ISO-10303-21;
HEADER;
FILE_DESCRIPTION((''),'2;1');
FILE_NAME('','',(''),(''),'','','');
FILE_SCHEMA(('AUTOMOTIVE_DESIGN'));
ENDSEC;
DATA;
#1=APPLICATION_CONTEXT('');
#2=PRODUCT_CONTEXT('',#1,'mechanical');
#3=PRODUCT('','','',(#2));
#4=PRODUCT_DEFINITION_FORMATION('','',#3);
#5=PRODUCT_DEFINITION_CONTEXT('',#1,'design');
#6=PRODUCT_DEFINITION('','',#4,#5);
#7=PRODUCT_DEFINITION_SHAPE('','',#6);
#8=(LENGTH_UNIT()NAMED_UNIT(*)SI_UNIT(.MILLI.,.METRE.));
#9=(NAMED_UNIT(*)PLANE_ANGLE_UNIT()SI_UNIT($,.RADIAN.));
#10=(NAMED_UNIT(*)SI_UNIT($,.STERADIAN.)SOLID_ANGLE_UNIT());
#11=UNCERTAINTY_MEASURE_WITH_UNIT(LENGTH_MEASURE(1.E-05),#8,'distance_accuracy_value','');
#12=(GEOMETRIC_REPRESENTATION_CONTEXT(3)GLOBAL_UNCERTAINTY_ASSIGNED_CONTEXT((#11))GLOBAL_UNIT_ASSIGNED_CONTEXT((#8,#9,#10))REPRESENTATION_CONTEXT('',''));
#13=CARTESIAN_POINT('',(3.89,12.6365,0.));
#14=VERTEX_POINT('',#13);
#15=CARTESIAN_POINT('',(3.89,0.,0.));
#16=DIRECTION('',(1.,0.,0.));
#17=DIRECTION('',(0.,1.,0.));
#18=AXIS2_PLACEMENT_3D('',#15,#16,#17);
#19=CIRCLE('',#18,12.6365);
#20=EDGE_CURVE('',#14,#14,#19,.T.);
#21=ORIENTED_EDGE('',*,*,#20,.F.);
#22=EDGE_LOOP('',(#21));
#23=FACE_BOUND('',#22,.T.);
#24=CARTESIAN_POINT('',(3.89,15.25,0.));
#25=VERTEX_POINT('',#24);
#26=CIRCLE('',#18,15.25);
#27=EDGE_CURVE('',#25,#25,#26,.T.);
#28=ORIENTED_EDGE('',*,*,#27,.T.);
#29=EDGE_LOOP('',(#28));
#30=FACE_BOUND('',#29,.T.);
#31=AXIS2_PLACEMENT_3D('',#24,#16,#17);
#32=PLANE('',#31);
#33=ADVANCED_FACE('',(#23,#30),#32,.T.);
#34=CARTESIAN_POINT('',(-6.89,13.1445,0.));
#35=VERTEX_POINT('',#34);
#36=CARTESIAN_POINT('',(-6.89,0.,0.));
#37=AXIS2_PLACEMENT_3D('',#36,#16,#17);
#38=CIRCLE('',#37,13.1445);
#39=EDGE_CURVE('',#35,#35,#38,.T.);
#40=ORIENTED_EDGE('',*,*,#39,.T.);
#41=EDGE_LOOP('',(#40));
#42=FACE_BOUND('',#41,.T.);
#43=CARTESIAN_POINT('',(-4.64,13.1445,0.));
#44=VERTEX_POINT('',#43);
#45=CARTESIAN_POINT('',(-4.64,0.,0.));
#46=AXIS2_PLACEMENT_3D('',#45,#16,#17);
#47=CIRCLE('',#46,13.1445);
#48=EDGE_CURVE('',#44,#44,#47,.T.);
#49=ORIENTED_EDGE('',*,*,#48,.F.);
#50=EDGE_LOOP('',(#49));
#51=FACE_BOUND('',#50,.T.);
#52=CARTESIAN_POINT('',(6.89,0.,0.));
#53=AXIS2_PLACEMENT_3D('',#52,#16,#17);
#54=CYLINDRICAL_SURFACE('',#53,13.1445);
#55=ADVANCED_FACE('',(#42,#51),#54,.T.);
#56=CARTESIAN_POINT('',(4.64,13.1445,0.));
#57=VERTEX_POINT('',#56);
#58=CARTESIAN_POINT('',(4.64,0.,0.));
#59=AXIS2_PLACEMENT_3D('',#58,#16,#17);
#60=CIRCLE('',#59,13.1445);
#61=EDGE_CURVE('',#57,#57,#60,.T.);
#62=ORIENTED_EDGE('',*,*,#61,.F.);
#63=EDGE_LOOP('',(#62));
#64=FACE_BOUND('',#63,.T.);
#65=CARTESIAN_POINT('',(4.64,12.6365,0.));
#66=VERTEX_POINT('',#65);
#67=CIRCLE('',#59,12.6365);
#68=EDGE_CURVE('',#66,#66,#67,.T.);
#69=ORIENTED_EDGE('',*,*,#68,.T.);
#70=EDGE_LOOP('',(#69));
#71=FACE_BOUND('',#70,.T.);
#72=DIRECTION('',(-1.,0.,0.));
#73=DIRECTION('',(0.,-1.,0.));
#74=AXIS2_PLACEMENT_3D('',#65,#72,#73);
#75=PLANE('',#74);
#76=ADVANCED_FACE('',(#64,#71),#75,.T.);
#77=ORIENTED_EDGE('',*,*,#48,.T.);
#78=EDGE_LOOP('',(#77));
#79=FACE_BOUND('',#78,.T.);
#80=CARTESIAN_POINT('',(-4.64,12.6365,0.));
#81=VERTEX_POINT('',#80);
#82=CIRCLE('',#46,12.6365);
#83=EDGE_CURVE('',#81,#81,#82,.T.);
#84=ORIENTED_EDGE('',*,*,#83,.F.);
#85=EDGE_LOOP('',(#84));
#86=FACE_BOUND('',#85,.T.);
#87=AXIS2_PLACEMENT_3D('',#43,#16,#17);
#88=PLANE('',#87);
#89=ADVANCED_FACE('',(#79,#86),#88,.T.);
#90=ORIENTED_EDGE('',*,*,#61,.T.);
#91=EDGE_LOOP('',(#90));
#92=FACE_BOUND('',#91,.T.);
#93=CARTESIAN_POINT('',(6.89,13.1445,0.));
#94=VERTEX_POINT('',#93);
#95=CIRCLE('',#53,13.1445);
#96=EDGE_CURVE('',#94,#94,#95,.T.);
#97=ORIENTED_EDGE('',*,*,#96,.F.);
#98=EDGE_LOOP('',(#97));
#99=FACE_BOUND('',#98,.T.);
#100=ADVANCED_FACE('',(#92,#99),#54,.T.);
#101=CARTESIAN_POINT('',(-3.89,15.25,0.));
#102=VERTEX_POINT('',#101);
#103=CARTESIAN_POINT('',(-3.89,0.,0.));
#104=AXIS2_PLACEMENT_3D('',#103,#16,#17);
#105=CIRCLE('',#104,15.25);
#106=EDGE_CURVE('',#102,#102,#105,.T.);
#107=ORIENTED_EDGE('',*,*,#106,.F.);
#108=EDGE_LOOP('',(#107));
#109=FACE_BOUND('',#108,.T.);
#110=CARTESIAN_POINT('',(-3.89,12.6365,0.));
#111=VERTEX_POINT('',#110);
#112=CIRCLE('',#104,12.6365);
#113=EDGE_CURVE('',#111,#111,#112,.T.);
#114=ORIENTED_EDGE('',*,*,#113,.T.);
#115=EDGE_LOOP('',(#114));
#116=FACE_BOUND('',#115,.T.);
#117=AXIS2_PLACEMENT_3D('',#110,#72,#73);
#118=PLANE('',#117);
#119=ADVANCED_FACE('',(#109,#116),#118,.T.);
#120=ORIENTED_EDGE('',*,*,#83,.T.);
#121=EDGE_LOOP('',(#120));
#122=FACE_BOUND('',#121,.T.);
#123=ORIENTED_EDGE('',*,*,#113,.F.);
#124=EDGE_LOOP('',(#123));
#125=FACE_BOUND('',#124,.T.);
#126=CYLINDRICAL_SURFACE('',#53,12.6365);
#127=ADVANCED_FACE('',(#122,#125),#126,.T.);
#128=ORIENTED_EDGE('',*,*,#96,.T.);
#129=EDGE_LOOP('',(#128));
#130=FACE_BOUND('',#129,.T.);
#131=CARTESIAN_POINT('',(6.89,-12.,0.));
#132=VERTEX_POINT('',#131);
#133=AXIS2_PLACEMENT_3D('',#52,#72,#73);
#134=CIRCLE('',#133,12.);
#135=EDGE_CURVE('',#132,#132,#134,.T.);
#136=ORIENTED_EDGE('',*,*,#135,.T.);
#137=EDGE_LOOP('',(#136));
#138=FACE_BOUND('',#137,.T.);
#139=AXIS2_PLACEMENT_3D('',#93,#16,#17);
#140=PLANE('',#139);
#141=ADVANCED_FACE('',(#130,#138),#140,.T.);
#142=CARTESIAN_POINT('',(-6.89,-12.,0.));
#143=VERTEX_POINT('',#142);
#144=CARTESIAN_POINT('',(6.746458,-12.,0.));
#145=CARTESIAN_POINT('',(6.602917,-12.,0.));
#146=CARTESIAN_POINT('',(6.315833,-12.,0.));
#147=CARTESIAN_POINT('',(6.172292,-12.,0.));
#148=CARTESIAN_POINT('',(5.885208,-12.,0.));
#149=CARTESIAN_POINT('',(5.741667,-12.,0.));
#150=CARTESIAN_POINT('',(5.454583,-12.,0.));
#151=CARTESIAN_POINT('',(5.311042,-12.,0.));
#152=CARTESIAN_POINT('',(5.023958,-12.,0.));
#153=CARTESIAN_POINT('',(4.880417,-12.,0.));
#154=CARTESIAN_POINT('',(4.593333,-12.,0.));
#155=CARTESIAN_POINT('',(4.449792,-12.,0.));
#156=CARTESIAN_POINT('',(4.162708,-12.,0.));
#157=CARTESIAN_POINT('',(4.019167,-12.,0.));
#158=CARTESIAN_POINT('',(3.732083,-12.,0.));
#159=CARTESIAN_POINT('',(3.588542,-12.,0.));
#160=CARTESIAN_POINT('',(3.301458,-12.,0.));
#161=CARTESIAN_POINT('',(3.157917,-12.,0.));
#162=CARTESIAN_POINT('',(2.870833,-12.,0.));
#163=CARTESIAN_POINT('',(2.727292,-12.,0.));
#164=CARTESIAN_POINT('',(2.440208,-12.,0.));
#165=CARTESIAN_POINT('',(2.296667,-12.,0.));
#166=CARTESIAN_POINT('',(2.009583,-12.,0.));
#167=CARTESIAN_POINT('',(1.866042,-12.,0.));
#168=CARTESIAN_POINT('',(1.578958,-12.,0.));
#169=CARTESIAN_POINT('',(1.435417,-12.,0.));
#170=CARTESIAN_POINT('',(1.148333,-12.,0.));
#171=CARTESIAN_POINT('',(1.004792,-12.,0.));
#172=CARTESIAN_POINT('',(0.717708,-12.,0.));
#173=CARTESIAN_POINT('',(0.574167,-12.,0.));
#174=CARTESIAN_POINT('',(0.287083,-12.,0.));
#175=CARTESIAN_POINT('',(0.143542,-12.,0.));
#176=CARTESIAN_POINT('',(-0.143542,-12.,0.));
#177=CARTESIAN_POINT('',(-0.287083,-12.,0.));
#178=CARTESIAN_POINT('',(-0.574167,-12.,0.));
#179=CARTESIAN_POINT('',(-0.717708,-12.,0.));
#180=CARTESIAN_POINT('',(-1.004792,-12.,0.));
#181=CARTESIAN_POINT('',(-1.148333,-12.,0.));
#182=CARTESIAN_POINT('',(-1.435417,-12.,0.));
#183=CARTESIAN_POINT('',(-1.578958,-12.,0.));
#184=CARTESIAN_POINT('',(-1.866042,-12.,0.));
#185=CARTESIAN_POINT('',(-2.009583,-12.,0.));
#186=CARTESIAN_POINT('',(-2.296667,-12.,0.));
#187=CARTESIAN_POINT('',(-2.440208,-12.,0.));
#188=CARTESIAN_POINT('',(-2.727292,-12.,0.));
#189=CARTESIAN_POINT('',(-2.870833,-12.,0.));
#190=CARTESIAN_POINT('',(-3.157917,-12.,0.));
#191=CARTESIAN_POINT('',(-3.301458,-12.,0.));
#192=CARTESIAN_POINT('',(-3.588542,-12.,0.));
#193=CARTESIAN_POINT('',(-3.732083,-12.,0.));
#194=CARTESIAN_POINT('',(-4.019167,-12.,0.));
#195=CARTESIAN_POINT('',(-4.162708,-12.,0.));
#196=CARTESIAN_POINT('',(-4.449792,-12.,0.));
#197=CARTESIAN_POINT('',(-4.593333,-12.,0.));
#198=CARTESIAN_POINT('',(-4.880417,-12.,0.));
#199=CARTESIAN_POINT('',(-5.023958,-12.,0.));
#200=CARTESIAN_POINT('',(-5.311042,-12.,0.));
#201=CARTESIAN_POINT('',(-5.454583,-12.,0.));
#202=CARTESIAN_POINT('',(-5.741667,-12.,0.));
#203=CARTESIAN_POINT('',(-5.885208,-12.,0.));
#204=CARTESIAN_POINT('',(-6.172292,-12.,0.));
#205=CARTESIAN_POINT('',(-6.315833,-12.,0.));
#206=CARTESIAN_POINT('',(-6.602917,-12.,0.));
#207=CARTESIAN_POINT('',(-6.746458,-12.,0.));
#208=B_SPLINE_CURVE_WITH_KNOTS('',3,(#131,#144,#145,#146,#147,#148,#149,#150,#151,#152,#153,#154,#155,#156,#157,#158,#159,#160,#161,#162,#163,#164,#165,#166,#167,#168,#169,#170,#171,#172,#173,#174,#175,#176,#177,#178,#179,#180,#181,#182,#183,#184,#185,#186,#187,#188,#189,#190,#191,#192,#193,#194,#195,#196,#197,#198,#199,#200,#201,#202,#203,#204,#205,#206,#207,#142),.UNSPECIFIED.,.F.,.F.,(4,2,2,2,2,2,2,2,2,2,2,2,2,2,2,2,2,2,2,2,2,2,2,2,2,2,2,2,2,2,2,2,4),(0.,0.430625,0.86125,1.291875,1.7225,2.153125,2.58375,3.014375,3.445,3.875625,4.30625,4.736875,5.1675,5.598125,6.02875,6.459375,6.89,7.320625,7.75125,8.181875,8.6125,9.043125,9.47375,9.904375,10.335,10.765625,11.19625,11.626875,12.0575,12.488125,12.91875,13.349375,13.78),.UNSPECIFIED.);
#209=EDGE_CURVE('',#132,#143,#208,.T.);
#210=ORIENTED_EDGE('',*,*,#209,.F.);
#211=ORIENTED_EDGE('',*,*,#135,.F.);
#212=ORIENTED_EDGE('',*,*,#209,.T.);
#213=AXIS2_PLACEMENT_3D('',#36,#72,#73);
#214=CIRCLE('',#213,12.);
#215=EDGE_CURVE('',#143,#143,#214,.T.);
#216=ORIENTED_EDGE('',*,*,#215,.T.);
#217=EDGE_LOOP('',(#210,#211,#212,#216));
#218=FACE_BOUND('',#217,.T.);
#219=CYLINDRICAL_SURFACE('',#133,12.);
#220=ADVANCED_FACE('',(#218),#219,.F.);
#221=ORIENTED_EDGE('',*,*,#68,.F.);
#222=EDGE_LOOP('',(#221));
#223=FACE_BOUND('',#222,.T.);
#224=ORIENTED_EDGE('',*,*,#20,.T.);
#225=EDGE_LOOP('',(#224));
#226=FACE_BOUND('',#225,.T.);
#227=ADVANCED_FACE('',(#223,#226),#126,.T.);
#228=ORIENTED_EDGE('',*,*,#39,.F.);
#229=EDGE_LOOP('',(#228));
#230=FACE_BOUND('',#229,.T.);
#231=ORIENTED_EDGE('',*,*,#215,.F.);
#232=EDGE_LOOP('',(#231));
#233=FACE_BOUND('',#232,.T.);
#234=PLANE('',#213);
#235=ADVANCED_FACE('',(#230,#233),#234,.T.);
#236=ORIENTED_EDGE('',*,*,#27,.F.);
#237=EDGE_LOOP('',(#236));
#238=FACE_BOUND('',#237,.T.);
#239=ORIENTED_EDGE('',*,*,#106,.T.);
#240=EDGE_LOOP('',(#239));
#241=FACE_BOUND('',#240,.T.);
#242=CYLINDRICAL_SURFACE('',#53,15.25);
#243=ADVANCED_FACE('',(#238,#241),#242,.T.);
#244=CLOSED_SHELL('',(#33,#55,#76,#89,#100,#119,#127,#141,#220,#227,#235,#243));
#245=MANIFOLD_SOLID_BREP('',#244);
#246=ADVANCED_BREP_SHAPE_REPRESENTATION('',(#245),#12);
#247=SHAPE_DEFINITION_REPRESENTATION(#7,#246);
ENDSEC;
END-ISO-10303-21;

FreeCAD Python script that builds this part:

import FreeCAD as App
import Part
import Sketcher

doc = App.newDocument("Part")
body = doc.addObject("PartDesign::Body", "Body")

sketch1 = doc.addObject("Sketcher::SketchObject", "Sketch")
body.addObject(sketch1)
sketch1.AttachmentSupport = (doc.XY_Plane, [""])
sketch1.MapMode = "FlatFace"
sketch1.addGeometry(Part.LineSegment(App.Vector(-6.9, 0, 0), App.Vector(6.9, 0, 0)), False)
sketch1.addGeometry(Part.LineSegment(App.Vector(6.9, 0, 0), App.Vector(6.9, 13.1, 0)), False)
sketch1.addGeometry(Part.LineSegment(App.Vector(6.9, 13.1, 0), App.Vector(4.6, 13.1, 0)), False)
sketch1.addGeometry(Part.LineSegment(App.Vector(4.6, 13.1, 0), App.Vector(4.6, 12.6, 0)), False)
sketch1.addGeometry(Part.LineSegment(App.Vector(4.6, 12.6, 0), App.Vector(3.9, 12.6, 0)), False)
sketch1.addGeometry(Part.LineSegment(App.Vector(3.9, 12.6, 0), App.Vector(3.9, 15.2, 0)), False)
sketch1.addGeometry(Part.LineSegment(App.Vector(3.9, 15.2, 0), App.Vector(-3.9, 15.2, 0)), False)
sketch1.addGeometry(Part.LineSegment(App.Vector(-3.9, 15.2, 0), App.Vector(-3.9, 12.6, 0)), False)
sketch1.addGeometry(Part.LineSegment(App.Vector(-3.9, 12.6, 0), App.Vector(-4.6, 12.6, 0)), False)
sketch1.addGeometry(Part.LineSegment(App.Vector(-4.6, 12.6, 0), App.Vector(-4.6, 13.1, 0)), False)
sketch1.addGeometry(Part.LineSegment(App.Vector(-4.6, 13.1, 0), App.Vector(-6.9, 13.1, 0)), False)
sketch1.addGeometry(Part.LineSegment(App.Vector(-6.9, 13.1, 0), App.Vector(-6.9, 0, 0)), False)
sketch1.addConstraint(Sketcher.Constraint("Coincident", 0, 2, 1, 1))
sketch1.addConstraint(Sketcher.Constraint("Coincident", 1, 2, 2, 1))
sketch1.addConstraint(Sketcher.Constraint("Coincident", 2, 2, 3, 1))
sketch1.addConstraint(Sketcher.Constraint("Coincident", 3, 2, 4, 1))
sketch1.addConstraint(Sketcher.Constraint("Coincident", 4, 2, 5, 1))
sketch1.addConstraint(Sketcher.Constraint("Coincident", 5, 2, 6, 1))
sketch1.addConstraint(Sketcher.Constraint("Coincident", 6, 2, 7, 1))
sketch1.addConstraint(Sketcher.Constraint("Coincident", 7, 2, 8, 1))
sketch1.addConstraint(Sketcher.Constraint("Coincident", 8, 2, 9, 1))
sketch1.addConstraint(Sketcher.Constraint("Coincident", 9, 2, 10, 1))
sketch1.addConstraint(Sketcher.Constraint("Coincident", 10, 2, 11, 1))
sketch1.addConstraint(Sketcher.Constraint("Coincident", 11, 2, 0, 1))
sketch1.addConstraint(Sketcher.Constraint("Horizontal", 0))
sketch1.addConstraint(Sketcher.Constraint("Vertical", 1))
sketch1.addConstraint(Sketcher.Constraint("Horizontal", 2))
sketch1.addConstraint(Sketcher.Constraint("Vertical", 3))
sketch1.addConstraint(Sketcher.Constraint("Horizontal", 4))
sketch1.addConstraint(Sketcher.Constraint("Vertical", 5))
sketch1.addConstraint(Sketcher.Constraint("Horizontal", 6))
sketch1.addConstraint(Sketcher.Constraint("Vertical", 7))
sketch1.addConstraint(Sketcher.Constraint("Horizontal", 8))
sketch1.addConstraint(Sketcher.Constraint("Vertical", 9))
sketch1.addConstraint(Sketcher.Constraint("Horizontal", 10))
sketch1.addConstraint(Sketcher.Constraint("Vertical", 11))
sketch1.addConstraint(Sketcher.Constraint("Symmetric", 0, 2, 11, 2, -1, 1))
sketch1.addConstraint(Sketcher.Constraint("Symmetric", 4, 2, 7, 2, -2))
sketch1.addConstraint(Sketcher.Constraint("Symmetric", 2, 2, 9, 2, -2))
sketch1.addConstraint(Sketcher.Constraint("DistanceX", 4, 2, 1, 2, 3.0))
sketch1.addConstraint(Sketcher.Constraint("DistanceX", 0, 1, 0, 2, 13.78))
sketch1.addConstraint(Sketcher.Constraint("DistanceX", 2, 2, 2, 1, 2.25))
sketch1.addConstraint(Sketcher.Constraint("DistanceY", 3, 2, 3, 1, 0.508))
sketch1.addConstraint(Sketcher.Constraint("DistanceY", -1, 1, 5, 2, 15.25))
sketch1.addConstraint(Sketcher.Constraint("DistanceY", 1, 1, 1, 2, 13.1445))
revolution = doc.addObject("PartDesign::Revolution", "Revolution")
body.addObject(revolution)
revolution.Profile = sketch1
revolution.ReferenceAxis = (sketch1, ["H_Axis"])
revolution.Angle = 360

sketch2 = doc.addObject("Sketcher::SketchObject", "Sketch001")
body.addObject(sketch2)
sketch2.AttachmentSupport = (doc.YZ_Plane, [""])
sketch2.MapMode = "FlatFace"
sketch2.AttachmentOffset = App.Placement(App.Vector(0, 0, -6.89), App.Rotation())
sketch2.addGeometry(Part.Circle(App.Vector(0, 0, 0), App.Vector(0, 0, 1), 12), False)
sketch2.addConstraint(Sketcher.Constraint("Coincident", 0, 3, -1, 1))
sketch2.addConstraint(Sketcher.Constraint("Diameter", 0, 24.0))
pocket1 = doc.addObject("PartDesign::Pocket", "Pocket")
body.addObject(pocket1)
pocket1.Profile = sketch2
pocket1.Type = "ThroughAll"
pocket1.Reversed = True

doc.recompute()
